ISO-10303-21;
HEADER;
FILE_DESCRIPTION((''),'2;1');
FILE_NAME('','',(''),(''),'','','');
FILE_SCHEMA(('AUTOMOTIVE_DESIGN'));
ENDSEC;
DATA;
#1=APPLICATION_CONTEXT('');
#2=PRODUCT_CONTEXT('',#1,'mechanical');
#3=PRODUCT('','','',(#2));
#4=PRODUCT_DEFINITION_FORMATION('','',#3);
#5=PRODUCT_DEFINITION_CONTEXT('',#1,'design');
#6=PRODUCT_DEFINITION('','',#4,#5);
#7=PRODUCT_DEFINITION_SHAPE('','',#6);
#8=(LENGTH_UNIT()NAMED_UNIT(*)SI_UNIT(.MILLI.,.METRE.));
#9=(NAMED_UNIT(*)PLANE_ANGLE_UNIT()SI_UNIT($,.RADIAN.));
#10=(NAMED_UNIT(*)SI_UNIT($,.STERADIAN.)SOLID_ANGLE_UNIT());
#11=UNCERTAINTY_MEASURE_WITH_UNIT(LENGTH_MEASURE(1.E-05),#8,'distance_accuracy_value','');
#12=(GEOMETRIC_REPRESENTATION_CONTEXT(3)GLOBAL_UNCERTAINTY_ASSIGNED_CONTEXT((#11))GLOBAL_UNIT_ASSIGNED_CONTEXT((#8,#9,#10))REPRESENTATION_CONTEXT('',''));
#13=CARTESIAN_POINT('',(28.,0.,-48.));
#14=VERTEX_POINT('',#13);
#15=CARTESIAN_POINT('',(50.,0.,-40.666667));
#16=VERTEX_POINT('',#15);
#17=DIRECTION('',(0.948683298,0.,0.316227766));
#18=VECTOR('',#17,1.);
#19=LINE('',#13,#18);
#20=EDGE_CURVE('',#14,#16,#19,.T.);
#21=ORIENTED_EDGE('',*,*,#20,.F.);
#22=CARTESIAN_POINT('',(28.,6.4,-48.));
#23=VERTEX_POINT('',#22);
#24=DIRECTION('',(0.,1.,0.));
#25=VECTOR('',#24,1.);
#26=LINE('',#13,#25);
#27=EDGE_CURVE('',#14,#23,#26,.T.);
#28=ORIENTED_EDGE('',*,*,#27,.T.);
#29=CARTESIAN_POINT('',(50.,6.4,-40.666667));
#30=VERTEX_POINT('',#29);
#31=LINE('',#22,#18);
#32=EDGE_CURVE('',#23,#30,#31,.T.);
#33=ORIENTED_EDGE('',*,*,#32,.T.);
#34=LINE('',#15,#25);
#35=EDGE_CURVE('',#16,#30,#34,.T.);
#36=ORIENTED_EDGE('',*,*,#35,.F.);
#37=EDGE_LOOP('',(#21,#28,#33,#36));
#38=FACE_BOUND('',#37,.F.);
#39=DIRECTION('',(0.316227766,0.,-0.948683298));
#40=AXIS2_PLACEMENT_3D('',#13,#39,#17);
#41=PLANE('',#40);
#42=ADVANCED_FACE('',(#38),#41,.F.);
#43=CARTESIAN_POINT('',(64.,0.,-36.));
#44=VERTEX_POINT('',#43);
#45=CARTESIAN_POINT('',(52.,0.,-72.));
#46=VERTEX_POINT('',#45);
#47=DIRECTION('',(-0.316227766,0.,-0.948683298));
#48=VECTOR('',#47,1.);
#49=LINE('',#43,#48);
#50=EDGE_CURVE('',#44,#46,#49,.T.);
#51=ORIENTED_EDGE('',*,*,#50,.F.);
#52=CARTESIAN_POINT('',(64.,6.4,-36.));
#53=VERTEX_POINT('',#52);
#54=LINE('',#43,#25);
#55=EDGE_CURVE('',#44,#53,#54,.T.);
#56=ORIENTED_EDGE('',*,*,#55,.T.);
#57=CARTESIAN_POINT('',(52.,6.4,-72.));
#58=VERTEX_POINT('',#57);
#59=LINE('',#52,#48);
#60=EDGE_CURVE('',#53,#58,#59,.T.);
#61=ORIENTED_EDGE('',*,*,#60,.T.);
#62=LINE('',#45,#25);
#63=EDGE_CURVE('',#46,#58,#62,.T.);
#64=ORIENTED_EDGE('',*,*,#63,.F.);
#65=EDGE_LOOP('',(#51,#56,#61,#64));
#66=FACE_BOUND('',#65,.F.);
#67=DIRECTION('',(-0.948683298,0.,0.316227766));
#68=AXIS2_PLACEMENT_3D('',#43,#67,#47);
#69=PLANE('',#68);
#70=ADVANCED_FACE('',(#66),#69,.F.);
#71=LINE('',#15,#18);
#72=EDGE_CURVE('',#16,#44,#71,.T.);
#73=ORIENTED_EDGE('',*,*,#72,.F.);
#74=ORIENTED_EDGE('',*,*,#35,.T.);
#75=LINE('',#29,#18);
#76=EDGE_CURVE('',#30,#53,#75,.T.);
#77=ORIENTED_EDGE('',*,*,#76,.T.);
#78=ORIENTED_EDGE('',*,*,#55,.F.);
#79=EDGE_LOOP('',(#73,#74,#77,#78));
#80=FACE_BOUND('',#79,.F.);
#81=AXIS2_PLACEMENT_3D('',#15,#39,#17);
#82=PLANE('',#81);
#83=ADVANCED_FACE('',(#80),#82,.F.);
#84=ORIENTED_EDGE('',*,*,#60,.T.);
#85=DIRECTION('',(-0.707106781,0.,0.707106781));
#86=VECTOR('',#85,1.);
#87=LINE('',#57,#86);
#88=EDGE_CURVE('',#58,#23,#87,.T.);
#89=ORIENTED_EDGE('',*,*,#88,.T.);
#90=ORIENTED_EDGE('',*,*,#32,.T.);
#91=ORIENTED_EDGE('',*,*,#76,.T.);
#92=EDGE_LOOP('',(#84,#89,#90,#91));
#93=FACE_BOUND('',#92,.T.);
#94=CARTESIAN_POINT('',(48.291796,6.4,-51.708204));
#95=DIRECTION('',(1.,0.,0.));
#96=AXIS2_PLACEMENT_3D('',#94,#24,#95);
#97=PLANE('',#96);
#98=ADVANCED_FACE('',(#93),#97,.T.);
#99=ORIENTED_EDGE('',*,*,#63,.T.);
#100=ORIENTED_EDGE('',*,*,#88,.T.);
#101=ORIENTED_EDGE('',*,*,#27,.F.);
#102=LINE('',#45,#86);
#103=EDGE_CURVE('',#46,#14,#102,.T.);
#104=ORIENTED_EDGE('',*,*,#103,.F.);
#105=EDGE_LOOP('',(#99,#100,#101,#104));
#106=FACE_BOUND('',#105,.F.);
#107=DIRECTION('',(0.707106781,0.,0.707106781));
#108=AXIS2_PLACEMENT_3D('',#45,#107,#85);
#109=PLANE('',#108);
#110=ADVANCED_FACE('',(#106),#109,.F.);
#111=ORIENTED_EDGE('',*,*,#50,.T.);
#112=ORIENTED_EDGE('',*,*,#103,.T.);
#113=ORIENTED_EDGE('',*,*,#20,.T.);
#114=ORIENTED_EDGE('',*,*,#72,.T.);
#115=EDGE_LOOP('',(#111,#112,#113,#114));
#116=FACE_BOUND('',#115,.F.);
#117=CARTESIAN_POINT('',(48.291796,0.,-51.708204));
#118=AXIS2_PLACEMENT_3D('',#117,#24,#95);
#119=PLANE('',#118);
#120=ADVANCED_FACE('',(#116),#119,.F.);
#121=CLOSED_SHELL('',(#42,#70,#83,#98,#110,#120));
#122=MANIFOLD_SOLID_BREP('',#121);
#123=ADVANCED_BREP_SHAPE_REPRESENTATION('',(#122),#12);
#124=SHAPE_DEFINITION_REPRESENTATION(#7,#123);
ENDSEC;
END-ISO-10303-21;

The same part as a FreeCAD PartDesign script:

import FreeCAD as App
import Part
import Sketcher
from FreeCAD import Vector
Q = App.Units.Quantity

doc = App.newDocument("Part")
params = doc.addObject("Spreadsheet::Sheet", "Params")
for row, (alias, value) in enumerate([
    ("pad1_length", "6.4 mm"),
], start=1):
    params.set(f"A{row}", alias)
    params.set(f"B{row}", "=" + value)
    params.setAlias(f"B{row}", alias)

body = doc.addObject("PartDesign::Body", "Body")

# Sketch on XZ plane
sketch1 = body.newObject("Sketcher::SketchObject", "Sketch")
sketch1.AttachmentSupport = (doc.getObject("XZ_Plane"), [""])
sketch1.MapMode = "FlatFace"
sketch1.addGeometry(Part.LineSegment(Vector(52, -72, 0), Vector(28, -48, 0)), False)
sketch1.addGeometry(Part.LineSegment(Vector(28, -48, 0), Vector(50, -40.666667, 0)), False)
sketch1.addGeometry(Part.LineSegment(Vector(50, -40.666667, 0), Vector(64, -36, 0)), False)
sketch1.addGeometry(Part.LineSegment(Vector(64, -36, 0), Vector(52, -72, 0)), False)
sketch1.addConstraint(Sketcher.Constraint("Coincident", 0, 2, 1, 1))
sketch1.addConstraint(Sketcher.Constraint("Coincident", 1, 2, 2, 1))
sketch1.addConstraint(Sketcher.Constraint("Coincident", 2, 2, 3, 1))
sketch1.addConstraint(Sketcher.Constraint("Coincident", 3, 2, 0, 1))
sketch1.addConstraint(Sketcher.Constraint("Parallel", 1, 2))
sketch1.addConstraint(Sketcher.Constraint("Angle", 0, Q("135 deg")))
sketch1.addConstraint(Sketcher.Constraint("DistanceX", -1, 1, 0, 2, 28.0))
sketch1.addConstraint(Sketcher.Constraint("DistanceY", 0, 2, -1, 1, 48.0))
sketch1.addConstraint(Sketcher.Constraint("DistanceX", -1, 1, 1, 2, 50.0))
sketch1.addConstraint(Sketcher.Constraint("DistanceX", -1, 1, 2, 2, 64.0))
sketch1.addConstraint(Sketcher.Constraint("DistanceY", 2, 2, -1, 1, 36.0))
sketch1.addConstraint(Sketcher.Constraint("DistanceX", -1, 1, 3, 2, 52.0))
pad1 = body.newObject("PartDesign::Pad", "Pad")
pad1.Profile = sketch1
pad1.setExpression("Length", "Params.pad1_length")
pad1.Reversed = True

doc.recompute()
